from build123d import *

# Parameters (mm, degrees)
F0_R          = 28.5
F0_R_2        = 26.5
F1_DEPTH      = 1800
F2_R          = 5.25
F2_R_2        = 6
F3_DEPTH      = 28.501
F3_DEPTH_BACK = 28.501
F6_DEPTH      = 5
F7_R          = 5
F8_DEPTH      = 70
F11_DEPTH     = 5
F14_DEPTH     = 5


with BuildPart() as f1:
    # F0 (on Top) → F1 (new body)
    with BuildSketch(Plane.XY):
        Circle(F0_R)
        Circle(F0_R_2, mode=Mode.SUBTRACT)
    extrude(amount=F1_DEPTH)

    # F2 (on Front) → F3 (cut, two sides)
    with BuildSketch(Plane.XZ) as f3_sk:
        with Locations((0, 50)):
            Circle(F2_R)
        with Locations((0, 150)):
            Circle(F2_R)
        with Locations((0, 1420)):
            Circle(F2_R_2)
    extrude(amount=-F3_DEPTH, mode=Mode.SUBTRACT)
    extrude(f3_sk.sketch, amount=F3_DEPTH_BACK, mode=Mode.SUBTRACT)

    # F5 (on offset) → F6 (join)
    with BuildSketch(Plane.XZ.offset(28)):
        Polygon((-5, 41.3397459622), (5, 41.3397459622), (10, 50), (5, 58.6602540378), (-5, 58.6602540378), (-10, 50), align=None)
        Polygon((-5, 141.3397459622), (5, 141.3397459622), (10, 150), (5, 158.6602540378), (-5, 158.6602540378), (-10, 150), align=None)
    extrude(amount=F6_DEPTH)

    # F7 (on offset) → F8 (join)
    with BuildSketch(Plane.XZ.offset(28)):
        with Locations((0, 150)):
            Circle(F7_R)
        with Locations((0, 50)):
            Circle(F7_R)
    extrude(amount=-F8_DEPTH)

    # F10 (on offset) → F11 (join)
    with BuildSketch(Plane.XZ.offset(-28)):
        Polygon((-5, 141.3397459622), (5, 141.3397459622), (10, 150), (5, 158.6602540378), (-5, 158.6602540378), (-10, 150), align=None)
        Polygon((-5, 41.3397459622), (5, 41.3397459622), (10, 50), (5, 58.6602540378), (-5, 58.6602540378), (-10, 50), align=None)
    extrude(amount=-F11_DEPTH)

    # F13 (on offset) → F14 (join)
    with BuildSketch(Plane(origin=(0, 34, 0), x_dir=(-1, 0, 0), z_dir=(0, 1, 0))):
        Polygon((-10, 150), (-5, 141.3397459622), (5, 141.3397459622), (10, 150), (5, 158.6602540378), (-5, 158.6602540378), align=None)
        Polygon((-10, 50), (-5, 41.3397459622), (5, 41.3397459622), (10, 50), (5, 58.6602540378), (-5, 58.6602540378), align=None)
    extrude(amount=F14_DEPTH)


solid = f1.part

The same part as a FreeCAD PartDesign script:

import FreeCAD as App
import Part
import Sketcher
Q = App.Units.Quantity


def add_polygon(sketch, points):
    """Adds a closed chain of lines whose ends are joined by coincident constraints."""
    first, n = sketch.GeometryCount, len(points)
    for a, b in zip(points, points[1:] + points[:1]):
        sketch.addGeometry(Part.LineSegment(App.Vector(*a, 0), App.Vector(*b, 0)), False)
    for i in range(n):
        sketch.addConstraint(Sketcher.Constraint("Coincident", first + i, 2, first + (i + 1) % n, 1))

doc = App.newDocument("Part")
body = doc.addObject("PartDesign::Body", "Body")

sketch1 = body.newObject("Sketcher::SketchObject", "Sketch")
sketch1.AttachmentSupport = (doc.getObject("XY_Plane"), [""])
sketch1.MapMode = "FlatFace"
sketch1.addGeometry(Part.Circle(App.Vector(0, 0, 0), App.Vector(0, 0, 1), 28), False)
sketch1.addGeometry(Part.Circle(App.Vector(0, 0, 0), App.Vector(0, 0, 1), 26), False)
sketch1.addConstraint(Sketcher.Constraint("Coincident", 0, 3, -1, 1))
sketch1.addConstraint(Sketcher.Constraint("Coincident", 1, 3, -1, 1))
sketch1.addConstraint(Sketcher.Constraint("Diameter", 0, 57.0))
sketch1.addConstraint(Sketcher.Constraint("Diameter", 1, 53.0))
pad1 = body.newObject("PartDesign::Pad", "Pad")
pad1.Profile = sketch1
pad1.Length = 1800

sketch2 = body.newObject("Sketcher::SketchObject", "Sketch001")
sketch2.AttachmentSupport = (doc.getObject("XZ_Plane"), [""])
sketch2.MapMode = "FlatFace"
sketch2.addGeometry(Part.Circle(App.Vector(0, 50, 0), App.Vector(0, 0, 1), 5), False)
sketch2.addGeometry(Part.Circle(App.Vector(0, 150, 0), App.Vector(0, 0, 1), 5), False)
sketch2.addGeometry(Part.Circle(App.Vector(0, 1420, 0), App.Vector(0, 0, 1), 6), False)
sketch2.addConstraint(Sketcher.Constraint("Equal", 0, 1))
sketch2.addConstraint(Sketcher.Constraint("PointOnObject", 0, 3, -2))
sketch2.addConstraint(Sketcher.Constraint("PointOnObject", 1, 3, -2))
sketch2.addConstraint(Sketcher.Constraint("PointOnObject", 2, 3, -2))
sketch2.addConstraint(Sketcher.Constraint("Diameter", 2, 12.0))
sketch2.addConstraint(Sketcher.Constraint("Diameter", 0, 10.5))
sketch2.addConstraint(Sketcher.Constraint("DistanceY", -1, 1, 0, 3, 50.0))
sketch2.addConstraint(Sketcher.Constraint("DistanceY", -1, 1, 1, 3, 150.0))
sketch2.addConstraint(Sketcher.Constraint("DistanceY", -1, 1, 2, 3, 1420.0))
pocket1 = body.newObject("PartDesign::Pocket", "Pocket")
pocket1.Profile = sketch2
pocket1.Type = "ThroughAll"
pocket1.Midplane = True

sketch3 = body.newObject("Sketcher::SketchObject", "Sketch002")
sketch3.AttachmentSupport = (doc.getObject("XZ_Plane"), [""])
sketch3.MapMode = "FlatFace"
sketch3.AttachmentOffset = App.Placement(App.Vector(0, 0, 28), App.Rotation())
add_polygon(sketch3, [(-5, 41), (5, 41), (10, 50), (5, 59), (-5, 59), (-10, 50)])
add_polygon(sketch3, [(-5, 141), (5, 141), (10, 150), (5, 159), (-5, 159), (-10, 150)])
sketch3.addConstraint(Sketcher.Constraint("Horizontal", 0))
sketch3.addConstraint(Sketcher.Constraint("Horizontal", 3))
sketch3.addConstraint(Sketcher.Constraint("Horizontal", 6))
sketch3.addConstraint(Sketcher.Constraint("Horizontal", 9))
sketch3.addConstraint(Sketcher.Constraint("Symmetric", 1, 2, 4, 2, -2))
sketch3.addConstraint(Sketcher.Constraint("Symmetric", 7, 2, 10, 2, -2))
sketch3.addConstraint(Sketcher.Constraint("Parallel", 1, 4))
sketch3.addConstraint(Sketcher.Constraint("Parallel", 2, 5))
sketch3.addConstraint(Sketcher.Constraint("Parallel", 4, 7))
sketch3.addConstraint(Sketcher.Constraint("Parallel", 5, 8))
sketch3.addConstraint(Sketcher.Constraint("Parallel", 7, 10))
sketch3.addConstraint(Sketcher.Constraint("Parallel", 8, 11))
sketch3.addConstraint(Sketcher.Constraint("Vertical", 0, 2, 2, 2))
sketch3.addConstraint(Sketcher.Constraint("Vertical", 3, 2, 5, 2))
sketch3.addConstraint(Sketcher.Constraint("Vertical", 2, 2, 6, 2))
sketch3.addConstraint(Sketcher.Constraint("Vertical", 1, 2, 7, 2))
sketch3.addConstraint(Sketcher.Constraint("Vertical", 6, 2, 8, 2))
sketch3.addConstraint(Sketcher.Constraint("DistanceX", 0, 1, 0, 2, 10.0))
sketch3.addConstraint(Sketcher.Constraint("Angle", 1, Q("60 deg")))
sketch3.addConstraint(Sketcher.Constraint("Distance", 1, 10.0))
sketch3.addConstraint(Sketcher.Constraint("DistanceY", -1, 1, 1, 2, 50.0))
sketch3.addConstraint(Sketcher.Constraint("DistanceY", -1, 1, 7, 2, 150.0))
pad2 = body.newObject("PartDesign::Pad", "Pad001")
pad2.Profile = sketch3
pad2.Length = 5

sketch4 = body.newObject("Sketcher::SketchObject", "Sketch003")
sketch4.AttachmentSupport = (doc.getObject("XZ_Plane"), [""])
sketch4.MapMode = "FlatFace"
sketch4.AttachmentOffset = App.Placement(App.Vector(0, 0, 28), App.Rotation())
sketch4.addGeometry(Part.Circle(App.Vector(0, 150, 0), App.Vector(0, 0, 1), 5), False)
sketch4.addGeometry(Part.Circle(App.Vector(0, 50, 0), App.Vector(0, 0, 1), 5), False)
sketch4.addConstraint(Sketcher.Constraint("Equal", 0, 1))
sketch4.addConstraint(Sketcher.Constraint("PointOnObject", 0, 3, -2))
sketch4.addConstraint(Sketcher.Constraint("PointOnObject", 1, 3, -2))
sketch4.addConstraint(Sketcher.Constraint("Diameter", 0, 10.0))
sketch4.addConstraint(Sketcher.Constraint("DistanceY", -1, 1, 0, 3, 150.0))
sketch4.addConstraint(Sketcher.Constraint("DistanceY", -1, 1, 1, 3, 50.0))
pad3 = body.newObject("PartDesign::Pad", "Pad002")
pad3.Profile = sketch4
pad3.Length = 70
pad3.Reversed = True

sketch5 = body.newObject("Sketcher::SketchObject", "Sketch004")
sketch5.AttachmentSupport = (doc.getObject("XZ_Plane"), [""])
sketch5.MapMode = "FlatFace"
sketch5.AttachmentOffset = App.Placement(App.Vector(0, 0, -28), App.Rotation())
add_polygon(sketch5, [(-5, 141), (5, 141), (10, 150), (5, 159), (-5, 159), (-10, 150)])
add_polygon(sketch5, [(-5, 41), (5, 41), (10, 50), (5, 59), (-5, 59), (-10, 50)])
sketch5.addConstraint(Sketcher.Constraint("Horizontal", 0))
sketch5.addConstraint(Sketcher.Constraint("Horizontal", 3))
sketch5.addConstraint(Sketcher.Constraint("Horizontal", 6))
sketch5.addConstraint(Sketcher.Constraint("Horizontal", 9))
sketch5.addConstraint(Sketcher.Constraint("Symmetric", 1, 2, 4, 2, -2))
sketch5.addConstraint(Sketcher.Constraint("Symmetric", 7, 2, 10, 2, -2))
sketch5.addConstraint(Sketcher.Constraint("Parallel", 1, 4))
sketch5.addConstraint(Sketcher.Constraint("Parallel", 2, 5))
sketch5.addConstraint(Sketcher.Constraint("Parallel", 4, 7))
sketch5.addConstraint(Sketcher.Constraint("Parallel", 5, 8))
sketch5.addConstraint(Sketcher.Constraint("Parallel", 7, 10))
sketch5.addConstraint(Sketcher.Constraint("Parallel", 8, 11))
sketch5.addConstraint(Sketcher.Constraint("Vertical", 0, 2, 2, 2))
sketch5.addConstraint(Sketcher.Constraint("Vertical", 3, 2, 5, 2))
sketch5.addConstraint(Sketcher.Constraint("Vertical", 2, 2, 6, 2))
sketch5.addConstraint(Sketcher.Constraint("Vertical", 1, 2, 7, 2))
sketch5.addConstraint(Sketcher.Constraint("Vertical", 6, 2, 8, 2))
sketch5.addConstraint(Sketcher.Constraint("DistanceX", 0, 1, 0, 2, 10.0))
sketch5.addConstraint(Sketcher.Constraint("Angle", 1, Q("60 deg")))
sketch5.addConstraint(Sketcher.Constraint("Distance", 1, 10.0))
sketch5.addConstraint(Sketcher.Constraint("DistanceY", -1, 1, 1, 2, 150.0))
sketch5.addConstraint(Sketcher.Constraint("DistanceY", -1, 1, 7, 2, 50.0))
pad4 = body.newObject("PartDesign::Pad", "Pad003")
pad4.Profile = sketch5
pad4.Length = 5
pad4.Reversed = True

sketch6 = body.newObject("Sketcher::SketchObject", "Sketch005")
sketch6.AttachmentSupport = (doc.getObject("XZ_Plane"), [""])
sketch6.MapMode = "FlatFace"
sketch6.AttachmentOffset = App.Placement(App.Vector(0, 0, -34), App.Rotation())
add_polygon(sketch6, [(10, 150), (5, 141), (-5, 141), (-10, 150), (-5, 159), (5, 159)])
add_polygon(sketch6, [(10, 50), (5, 41), (-5, 41), (-10, 50), (-5, 59), (5, 59)])
sketch6.addConstraint(Sketcher.Constraint("Horizontal", 1))
sketch6.addConstraint(Sketcher.Constraint("Horizontal", 4))
sketch6.addConstraint(Sketcher.Constraint("Horizontal", 7))
sketch6.addConstraint(Sketcher.Constraint("Horizontal", 10))
sketch6.addConstraint(Sketcher.Constraint("Symmetric", 2, 2, 5, 2, -2))
sketch6.addConstraint(Sketcher.Constraint("Symmetric", 8, 2, 11, 2, -2))
sketch6.addConstraint(Sketcher.Constraint("Parallel", 0, 3))
sketch6.addConstraint(Sketcher.Constraint("Parallel", 2, 5))
sketch6.addConstraint(Sketcher.Constraint("Parallel", 3, 6))
sketch6.addConstraint(Sketcher.Constraint("Parallel", 5, 8))
sketch6.addConstraint(Sketcher.Constraint("Parallel", 6, 9))
sketch6.addConstraint(Sketcher.Constraint("Parallel", 8, 11))
sketch6.addConstraint(Sketcher.Constraint("Vertical", 1, 2, 3, 2))
sketch6.addConstraint(Sketcher.Constraint("Vertical", 0, 2, 4, 2))
sketch6.addConstraint(Sketcher.Constraint("Vertical", 4, 2, 6, 2))
sketch6.addConstraint(Sketcher.Constraint("Vertical", 2, 2, 8, 2))
sketch6.addConstraint(Sketcher.Constraint("Vertical", 7, 2, 9, 2))
sketch6.addConstraint(Sketcher.Constraint("DistanceX", 1, 2, 1, 1, 10.0))
sketch6.addConstraint(Sketcher.Constraint("Angle", 0, Q("-120 deg")))
sketch6.addConstraint(Sketcher.Constraint("Distance", 0, 10.0))
sketch6.addConstraint(Sketcher.Constraint("DistanceY", -1, 1, 2, 2, 150.0))
sketch6.addConstraint(Sketcher.Constraint("DistanceY", -1, 1, 8, 2, 50.0))
pad5 = body.newObject("PartDesign::Pad", "Pad004")
pad5.Profile = sketch6
pad5.Length = 5
pad5.Reversed = True

doc.recompute()
